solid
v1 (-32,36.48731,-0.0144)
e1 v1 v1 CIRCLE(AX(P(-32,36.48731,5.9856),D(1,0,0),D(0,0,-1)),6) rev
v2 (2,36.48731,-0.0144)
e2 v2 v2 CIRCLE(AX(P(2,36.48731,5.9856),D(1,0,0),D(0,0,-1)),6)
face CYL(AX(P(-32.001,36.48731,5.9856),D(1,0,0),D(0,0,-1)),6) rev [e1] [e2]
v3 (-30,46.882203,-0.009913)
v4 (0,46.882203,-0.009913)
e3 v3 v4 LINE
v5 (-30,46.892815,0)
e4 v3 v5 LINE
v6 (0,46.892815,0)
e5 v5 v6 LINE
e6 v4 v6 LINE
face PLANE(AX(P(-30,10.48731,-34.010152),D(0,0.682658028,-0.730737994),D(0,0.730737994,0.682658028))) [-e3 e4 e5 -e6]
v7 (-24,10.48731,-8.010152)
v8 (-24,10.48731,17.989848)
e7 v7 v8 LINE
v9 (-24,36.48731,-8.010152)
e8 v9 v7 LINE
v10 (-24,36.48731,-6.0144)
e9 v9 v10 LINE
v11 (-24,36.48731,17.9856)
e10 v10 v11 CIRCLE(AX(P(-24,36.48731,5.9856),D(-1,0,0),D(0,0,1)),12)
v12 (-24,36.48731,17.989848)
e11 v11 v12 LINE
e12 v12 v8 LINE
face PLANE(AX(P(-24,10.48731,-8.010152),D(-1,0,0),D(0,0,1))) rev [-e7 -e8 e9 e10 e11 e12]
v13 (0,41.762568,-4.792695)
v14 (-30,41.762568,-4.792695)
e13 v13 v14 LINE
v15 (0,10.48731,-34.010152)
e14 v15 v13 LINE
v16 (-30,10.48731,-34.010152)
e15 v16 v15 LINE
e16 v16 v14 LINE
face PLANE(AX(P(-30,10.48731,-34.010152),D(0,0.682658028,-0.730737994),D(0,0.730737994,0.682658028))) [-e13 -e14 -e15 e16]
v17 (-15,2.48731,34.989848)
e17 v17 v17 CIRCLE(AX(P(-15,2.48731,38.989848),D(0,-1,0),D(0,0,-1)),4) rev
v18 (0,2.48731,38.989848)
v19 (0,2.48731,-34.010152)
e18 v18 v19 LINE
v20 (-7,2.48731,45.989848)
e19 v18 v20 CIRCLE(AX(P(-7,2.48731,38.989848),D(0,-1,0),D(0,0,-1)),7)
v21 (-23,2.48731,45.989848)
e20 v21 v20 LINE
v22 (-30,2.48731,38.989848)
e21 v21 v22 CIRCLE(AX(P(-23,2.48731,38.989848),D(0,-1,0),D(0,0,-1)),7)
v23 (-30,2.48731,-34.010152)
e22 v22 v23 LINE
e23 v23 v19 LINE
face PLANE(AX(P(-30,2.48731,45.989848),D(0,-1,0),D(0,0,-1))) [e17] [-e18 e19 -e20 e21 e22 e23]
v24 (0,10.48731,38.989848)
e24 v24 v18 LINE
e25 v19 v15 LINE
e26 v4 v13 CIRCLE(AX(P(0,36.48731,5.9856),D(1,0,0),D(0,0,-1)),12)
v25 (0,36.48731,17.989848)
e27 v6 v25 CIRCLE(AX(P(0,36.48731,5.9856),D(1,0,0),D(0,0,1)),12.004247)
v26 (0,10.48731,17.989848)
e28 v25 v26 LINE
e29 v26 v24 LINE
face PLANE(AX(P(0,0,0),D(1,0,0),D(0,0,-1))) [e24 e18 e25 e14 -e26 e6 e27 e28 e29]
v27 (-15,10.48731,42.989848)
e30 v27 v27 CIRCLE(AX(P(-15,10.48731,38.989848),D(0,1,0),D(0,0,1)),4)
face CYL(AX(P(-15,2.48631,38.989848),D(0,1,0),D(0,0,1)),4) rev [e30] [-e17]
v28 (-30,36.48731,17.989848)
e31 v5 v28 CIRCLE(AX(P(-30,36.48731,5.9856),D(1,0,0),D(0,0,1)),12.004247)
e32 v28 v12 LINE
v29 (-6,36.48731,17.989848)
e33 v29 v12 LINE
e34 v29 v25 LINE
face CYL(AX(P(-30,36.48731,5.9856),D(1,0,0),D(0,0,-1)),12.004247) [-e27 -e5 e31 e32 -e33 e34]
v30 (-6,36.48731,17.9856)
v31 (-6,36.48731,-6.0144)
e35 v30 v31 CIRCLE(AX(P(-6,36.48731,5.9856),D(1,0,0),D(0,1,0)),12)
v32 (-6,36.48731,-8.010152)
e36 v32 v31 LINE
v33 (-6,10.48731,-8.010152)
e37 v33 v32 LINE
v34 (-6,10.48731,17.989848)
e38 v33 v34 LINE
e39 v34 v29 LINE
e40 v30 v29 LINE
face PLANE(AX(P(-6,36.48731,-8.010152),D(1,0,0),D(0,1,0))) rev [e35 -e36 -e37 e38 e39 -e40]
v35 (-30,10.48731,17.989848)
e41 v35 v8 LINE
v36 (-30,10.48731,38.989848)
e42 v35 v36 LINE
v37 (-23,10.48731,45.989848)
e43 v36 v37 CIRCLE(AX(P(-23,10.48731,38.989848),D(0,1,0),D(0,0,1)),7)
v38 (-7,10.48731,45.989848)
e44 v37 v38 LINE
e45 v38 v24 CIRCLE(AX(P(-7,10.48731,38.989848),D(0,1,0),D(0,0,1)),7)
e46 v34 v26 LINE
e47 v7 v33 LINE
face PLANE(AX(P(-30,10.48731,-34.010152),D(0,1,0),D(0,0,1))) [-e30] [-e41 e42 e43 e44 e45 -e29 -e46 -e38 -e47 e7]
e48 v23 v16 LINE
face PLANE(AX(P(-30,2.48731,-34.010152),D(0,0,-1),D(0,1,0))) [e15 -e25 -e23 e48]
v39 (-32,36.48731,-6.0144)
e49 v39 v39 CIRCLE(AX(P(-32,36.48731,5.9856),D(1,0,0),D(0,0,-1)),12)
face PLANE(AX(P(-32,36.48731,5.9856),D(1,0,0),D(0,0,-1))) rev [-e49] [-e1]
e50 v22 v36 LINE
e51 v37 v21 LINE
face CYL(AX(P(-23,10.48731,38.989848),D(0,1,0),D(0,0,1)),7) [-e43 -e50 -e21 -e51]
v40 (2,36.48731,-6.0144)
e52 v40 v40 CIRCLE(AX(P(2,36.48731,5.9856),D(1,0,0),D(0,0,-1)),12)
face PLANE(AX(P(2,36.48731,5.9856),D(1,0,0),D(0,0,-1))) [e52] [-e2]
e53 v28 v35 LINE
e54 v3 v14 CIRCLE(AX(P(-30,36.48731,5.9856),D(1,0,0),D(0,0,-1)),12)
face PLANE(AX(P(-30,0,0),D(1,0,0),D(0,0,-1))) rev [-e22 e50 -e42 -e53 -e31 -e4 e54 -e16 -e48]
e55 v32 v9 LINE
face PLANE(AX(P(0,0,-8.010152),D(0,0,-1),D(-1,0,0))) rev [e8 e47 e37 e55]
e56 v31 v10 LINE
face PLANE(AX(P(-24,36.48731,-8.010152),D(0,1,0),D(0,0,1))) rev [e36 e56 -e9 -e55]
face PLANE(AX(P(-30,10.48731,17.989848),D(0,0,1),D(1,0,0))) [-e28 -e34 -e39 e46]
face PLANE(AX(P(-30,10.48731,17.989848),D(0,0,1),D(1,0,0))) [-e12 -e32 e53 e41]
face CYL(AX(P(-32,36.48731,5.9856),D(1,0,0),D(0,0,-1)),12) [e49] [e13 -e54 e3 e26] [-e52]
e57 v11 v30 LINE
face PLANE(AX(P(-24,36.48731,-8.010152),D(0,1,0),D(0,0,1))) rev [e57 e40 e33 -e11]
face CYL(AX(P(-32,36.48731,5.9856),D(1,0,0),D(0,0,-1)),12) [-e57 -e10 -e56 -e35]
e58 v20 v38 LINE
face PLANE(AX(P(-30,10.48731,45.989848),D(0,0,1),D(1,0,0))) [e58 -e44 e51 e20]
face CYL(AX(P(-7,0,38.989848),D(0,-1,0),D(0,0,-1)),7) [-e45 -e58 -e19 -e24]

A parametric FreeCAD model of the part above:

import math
import FreeCAD as App
import Part
import Sketcher

V = App.Vector
Q = App.Units.Quantity


def edges_at(feature, points):
    """Names of the edges that pass closest to the given points."""
    edges = feature.Shape.Edges
    near = lambda p: min(range(len(edges)), key=lambda i: edges[i].distToShape(Part.Vertex(*p))[0])
    return sorted({f"Edge{near(p) + 1}" for p in points})

doc = App.newDocument("Part")
body = doc.addObject("PartDesign::Body", "Body")

# Sketch on YZ plane
sketch1 = body.newObject("Sketcher::SketchObject", "Sketch")
sketch1.AttachmentSupport = (doc.getObject("YZ_Plane"), [""])
sketch1.MapMode = "FlatFace"
sketch1.addGeometry([
    Part.LineSegment(V(10, 46, 0), V(2, 46, 0)),
    Part.LineSegment(V(2, 46, 0), V(2, -34, 0)),
    Part.LineSegment(V(2, -34, 0), V(10, -34, 0)),
    Part.LineSegment(V(10, -34, 0), V(10, 46, 0)),
], False)
sketch1.addConstraint([
    Sketcher.Constraint("Coincident", 0, 2, 1, 1),
    Sketcher.Constraint("Coincident", 1, 2, 2, 1),
    Sketcher.Constraint("Coincident", 2, 2, 3, 1),
    Sketcher.Constraint("Coincident", 3, 2, 0, 1),
    Sketcher.Constraint("Horizontal", 0),
    Sketcher.Constraint("Vertical", 1),
    Sketcher.Constraint("Horizontal", 2),
    Sketcher.Constraint("Vertical", 3),
    Sketcher.Constraint("DistanceX", 0, 2, 0, 1, Q("8 mm")),
    Sketcher.Constraint("DistanceY", 1, 2, 1, 1, Q("80 mm")),
    Sketcher.Constraint("DistanceX", -1, 1, 0, 2, Q("2.48731 mm")),
    Sketcher.Constraint("DistanceY", -1, 1, 0, 2, Q("45.989848 mm")),
])
pad1 = body.newObject("PartDesign::Pad", "Pad")
pad1.Profile = sketch1
pad1.Length = 30
pad1.Reversed = True
doc.recompute()

fillet = body.newObject("PartDesign::Fillet", "Fillet")
fillet.Base = (pad1, edges_at(pad1, [(0, 6.487, 45.99)]))
fillet.Radius = 7
doc.recompute()

fillet2 = body.newObject("PartDesign::Fillet", "Fillet001")
fillet2.Base = (fillet, edges_at(fillet, [(-30, 6.487, 45.99)]))
fillet2.Radius = 7

# Sketch on YZ plane
sketch2 = body.newObject("Sketcher::SketchObject", "Sketch001")
sketch2.AttachmentSupport = (doc.getObject("YZ_Plane"), [""])
sketch2.MapMode = "FlatFace"
sketch2.addGeometry([
    Part.LineSegment(V(36, 18, 0), V(10, 18, 0)),
    Part.LineSegment(V(10, 18, 0), V(10, -34, 0)),
    Part.LineSegment(V(10, -34, 0), V(47, 0, 0)),
    Part.ArcOfCircle(Part.Circle(V(36, 6, 0), V(0, 0, 1), 12), math.radians(-30), math.radians(90)),
], False)
sketch2.addConstraint([
    Sketcher.Constraint("Coincident", 0, 2, 1, 1),
    Sketcher.Constraint("Coincident", 1, 2, 2, 1),
    Sketcher.Constraint("Coincident", 2, 2, 3, 1),
    Sketcher.Constraint("Tangent", 3, 2, 0, 1),
    Sketcher.Constraint("Horizontal", 0),
    Sketcher.Constraint("Vertical", 1),
    Sketcher.Constraint("PointOnObject", 2, 2, -1),
    Sketcher.Constraint("DistanceX", 0, 2, 0, 1, Q("26 mm")),
    Sketcher.Constraint("DistanceY", 1, 2, 1, 1, Q("52 mm")),
    Sketcher.Constraint("Radius", 3, Q("12.004247 mm")),
    Sketcher.Constraint("DistanceY", -1, 1, 3, 3, Q("5.9856 mm")),
    Sketcher.Constraint("DistanceX", -1, 1, 3, 3, Q("36.48731 mm")),
])
pad2 = body.newObject("PartDesign::Pad", "Pad001")
pad2.Profile = sketch2
pad2.Length = 30
pad2.Reversed = True

# Sketch on XY plane
sketch3 = body.newObject("Sketcher::SketchObject", "Sketch002")
sketch3.AttachmentSupport = (doc.getObject("XY_Plane"), [""])
sketch3.MapMode = "FlatFace"
sketch3.AttachmentOffset = App.Placement(V(0, 0, 17.989848), App.Rotation())
sketch3.addGeometry([
    Part.LineSegment(V(-24, 36, 0), V(-24, 10, 0)),
    Part.LineSegment(V(-24, 10, 0), V(-6, 10, 0)),
    Part.LineSegment(V(-6, 10, 0), V(-6, 36, 0)),
    Part.LineSegment(V(-6, 36, 0), V(-24, 36, 0)),
], False)
sketch3.addConstraint([
    Sketcher.Constraint("Coincident", 0, 2, 1, 1),
    Sketcher.Constraint("Coincident", 1, 2, 2, 1),
    Sketcher.Constraint("Coincident", 2, 2, 3, 1),
    Sketcher.Constraint("Coincident", 3, 2, 0, 1),
    Sketcher.Constraint("Vertical", 0),
    Sketcher.Constraint("Horizontal", 1),
    Sketcher.Constraint("Vertical", 2),
    Sketcher.Constraint("Horizontal", 3),
    Sketcher.Constraint("DistanceX", 1, 1, 1, 2, Q("18 mm")),
    Sketcher.Constraint("DistanceY", 0, 2, 0, 1, Q("26 mm")),
    Sketcher.Constraint("DistanceX", 0, 2, -1, 1, Q("24 mm")),
    Sketcher.Constraint("DistanceY", -1, 1, 0, 2, Q("10.48731 mm")),
])
pocket1 = body.newObject("PartDesign::Pocket", "Pocket")
pocket1.Profile = sketch3
pocket1.Length = 26

# Sketch on YZ plane
sketch4 = body.newObject("Sketcher::SketchObject", "Sketch003")
sketch4.AttachmentSupport = (doc.getObject("YZ_Plane"), [""])
sketch4.MapMode = "FlatFace"
sketch4.addGeometry(Part.Circle(V(36, 6, 0), V(0, 0, 1), 12), False)
sketch4.addConstraint([
    Sketcher.Constraint("Diameter", 0, Q("24 mm")),
    Sketcher.Constraint("DistanceY", -1, 1, 0, 3, Q("5.9856 mm")),
    Sketcher.Constraint("DistanceX", -1, 1, 0, 3, Q("36.48731 mm")),
])
pad3 = body.newObject("PartDesign::Pad", "Pad002")
pad3.Profile = sketch4
pad3.Length = 32
pad3.Reversed = True

# Sketch on YZ plane
sketch5 = body.newObject("Sketcher::SketchObject", "Sketch004")
sketch5.AttachmentSupport = (doc.getObject("YZ_Plane"), [""])
sketch5.MapMode = "FlatFace"
sketch5.AttachmentOffset = App.Placement(V(0, 0, 2), App.Rotation())
sketch5.addGeometry(Part.Circle(V(36, 6, 0), V(0, 0, 1), 12), False)
sketch5.addConstraint([
    Sketcher.Constraint("Diameter", 0, Q("24 mm")),
    Sketcher.Constraint("DistanceY", -1, 1, 0, 3, Q("5.9856 mm")),
    Sketcher.Constraint("DistanceX", -1, 1, 0, 3, Q("36.48731 mm")),
])
pad4 = body.newObject("PartDesign::Pad", "Pad003")
pad4.Profile = sketch5
pad4.Length = 2
pad4.Reversed = True

# Sketch on YZ plane
sketch6 = body.newObject("Sketcher::SketchObject", "Sketch005")
sketch6.AttachmentSupport = (doc.getObject("YZ_Plane"), [""])
sketch6.MapMode = "FlatFace"
sketch6.AttachmentOffset = App.Placement(V(0, 0, 2), App.Rotation())
sketch6.addGeometry(Part.Circle(V(36, 6, 0), V(0, 0, 1), 6), False)
sketch6.addConstraint([
    Sketcher.Constraint("Diameter", 0, Q("12 mm")),
    Sketcher.Constraint("DistanceY", -1, 1, 0, 3, Q("5.9856 mm")),
    Sketcher.Constraint("DistanceX", -1, 1, 0, 3, Q("36.48731 mm")),
])
pocket2 = body.newObject("PartDesign::Pocket", "Pocket001")
pocket2.Profile = sketch6
pocket2.Type = "UpToFirst"

# Sketch on XZ plane
sketch7 = body.newObject("Sketcher::SketchObject", "Sketch006")
sketch7.AttachmentSupport = (doc.getObject("XZ_Plane"), [""])
sketch7.MapMode = "FlatFace"
sketch7.AttachmentOffset = App.Placement(V(0, 0, -10.48731), App.Rotation())
sketch7.addGeometry(Part.Circle(V(-15, 39, 0), V(0, 0, 1), 4), False)
sketch7.addConstraint([
    Sketcher.Constraint("Diameter", 0, Q("8 mm")),
    Sketcher.Constraint("DistanceX", 0, 3, -1, 1, Q("15 mm")),
    Sketcher.Constraint("DistanceY", -1, 1, 0, 3, Q("38.989848 mm")),
])
pocket3 = body.newObject("PartDesign::Pocket", "Pocket002")
pocket3.Profile = sketch7
pocket3.Type = "UpToFirst"
pocket3.Reversed = True

doc.recompute()
